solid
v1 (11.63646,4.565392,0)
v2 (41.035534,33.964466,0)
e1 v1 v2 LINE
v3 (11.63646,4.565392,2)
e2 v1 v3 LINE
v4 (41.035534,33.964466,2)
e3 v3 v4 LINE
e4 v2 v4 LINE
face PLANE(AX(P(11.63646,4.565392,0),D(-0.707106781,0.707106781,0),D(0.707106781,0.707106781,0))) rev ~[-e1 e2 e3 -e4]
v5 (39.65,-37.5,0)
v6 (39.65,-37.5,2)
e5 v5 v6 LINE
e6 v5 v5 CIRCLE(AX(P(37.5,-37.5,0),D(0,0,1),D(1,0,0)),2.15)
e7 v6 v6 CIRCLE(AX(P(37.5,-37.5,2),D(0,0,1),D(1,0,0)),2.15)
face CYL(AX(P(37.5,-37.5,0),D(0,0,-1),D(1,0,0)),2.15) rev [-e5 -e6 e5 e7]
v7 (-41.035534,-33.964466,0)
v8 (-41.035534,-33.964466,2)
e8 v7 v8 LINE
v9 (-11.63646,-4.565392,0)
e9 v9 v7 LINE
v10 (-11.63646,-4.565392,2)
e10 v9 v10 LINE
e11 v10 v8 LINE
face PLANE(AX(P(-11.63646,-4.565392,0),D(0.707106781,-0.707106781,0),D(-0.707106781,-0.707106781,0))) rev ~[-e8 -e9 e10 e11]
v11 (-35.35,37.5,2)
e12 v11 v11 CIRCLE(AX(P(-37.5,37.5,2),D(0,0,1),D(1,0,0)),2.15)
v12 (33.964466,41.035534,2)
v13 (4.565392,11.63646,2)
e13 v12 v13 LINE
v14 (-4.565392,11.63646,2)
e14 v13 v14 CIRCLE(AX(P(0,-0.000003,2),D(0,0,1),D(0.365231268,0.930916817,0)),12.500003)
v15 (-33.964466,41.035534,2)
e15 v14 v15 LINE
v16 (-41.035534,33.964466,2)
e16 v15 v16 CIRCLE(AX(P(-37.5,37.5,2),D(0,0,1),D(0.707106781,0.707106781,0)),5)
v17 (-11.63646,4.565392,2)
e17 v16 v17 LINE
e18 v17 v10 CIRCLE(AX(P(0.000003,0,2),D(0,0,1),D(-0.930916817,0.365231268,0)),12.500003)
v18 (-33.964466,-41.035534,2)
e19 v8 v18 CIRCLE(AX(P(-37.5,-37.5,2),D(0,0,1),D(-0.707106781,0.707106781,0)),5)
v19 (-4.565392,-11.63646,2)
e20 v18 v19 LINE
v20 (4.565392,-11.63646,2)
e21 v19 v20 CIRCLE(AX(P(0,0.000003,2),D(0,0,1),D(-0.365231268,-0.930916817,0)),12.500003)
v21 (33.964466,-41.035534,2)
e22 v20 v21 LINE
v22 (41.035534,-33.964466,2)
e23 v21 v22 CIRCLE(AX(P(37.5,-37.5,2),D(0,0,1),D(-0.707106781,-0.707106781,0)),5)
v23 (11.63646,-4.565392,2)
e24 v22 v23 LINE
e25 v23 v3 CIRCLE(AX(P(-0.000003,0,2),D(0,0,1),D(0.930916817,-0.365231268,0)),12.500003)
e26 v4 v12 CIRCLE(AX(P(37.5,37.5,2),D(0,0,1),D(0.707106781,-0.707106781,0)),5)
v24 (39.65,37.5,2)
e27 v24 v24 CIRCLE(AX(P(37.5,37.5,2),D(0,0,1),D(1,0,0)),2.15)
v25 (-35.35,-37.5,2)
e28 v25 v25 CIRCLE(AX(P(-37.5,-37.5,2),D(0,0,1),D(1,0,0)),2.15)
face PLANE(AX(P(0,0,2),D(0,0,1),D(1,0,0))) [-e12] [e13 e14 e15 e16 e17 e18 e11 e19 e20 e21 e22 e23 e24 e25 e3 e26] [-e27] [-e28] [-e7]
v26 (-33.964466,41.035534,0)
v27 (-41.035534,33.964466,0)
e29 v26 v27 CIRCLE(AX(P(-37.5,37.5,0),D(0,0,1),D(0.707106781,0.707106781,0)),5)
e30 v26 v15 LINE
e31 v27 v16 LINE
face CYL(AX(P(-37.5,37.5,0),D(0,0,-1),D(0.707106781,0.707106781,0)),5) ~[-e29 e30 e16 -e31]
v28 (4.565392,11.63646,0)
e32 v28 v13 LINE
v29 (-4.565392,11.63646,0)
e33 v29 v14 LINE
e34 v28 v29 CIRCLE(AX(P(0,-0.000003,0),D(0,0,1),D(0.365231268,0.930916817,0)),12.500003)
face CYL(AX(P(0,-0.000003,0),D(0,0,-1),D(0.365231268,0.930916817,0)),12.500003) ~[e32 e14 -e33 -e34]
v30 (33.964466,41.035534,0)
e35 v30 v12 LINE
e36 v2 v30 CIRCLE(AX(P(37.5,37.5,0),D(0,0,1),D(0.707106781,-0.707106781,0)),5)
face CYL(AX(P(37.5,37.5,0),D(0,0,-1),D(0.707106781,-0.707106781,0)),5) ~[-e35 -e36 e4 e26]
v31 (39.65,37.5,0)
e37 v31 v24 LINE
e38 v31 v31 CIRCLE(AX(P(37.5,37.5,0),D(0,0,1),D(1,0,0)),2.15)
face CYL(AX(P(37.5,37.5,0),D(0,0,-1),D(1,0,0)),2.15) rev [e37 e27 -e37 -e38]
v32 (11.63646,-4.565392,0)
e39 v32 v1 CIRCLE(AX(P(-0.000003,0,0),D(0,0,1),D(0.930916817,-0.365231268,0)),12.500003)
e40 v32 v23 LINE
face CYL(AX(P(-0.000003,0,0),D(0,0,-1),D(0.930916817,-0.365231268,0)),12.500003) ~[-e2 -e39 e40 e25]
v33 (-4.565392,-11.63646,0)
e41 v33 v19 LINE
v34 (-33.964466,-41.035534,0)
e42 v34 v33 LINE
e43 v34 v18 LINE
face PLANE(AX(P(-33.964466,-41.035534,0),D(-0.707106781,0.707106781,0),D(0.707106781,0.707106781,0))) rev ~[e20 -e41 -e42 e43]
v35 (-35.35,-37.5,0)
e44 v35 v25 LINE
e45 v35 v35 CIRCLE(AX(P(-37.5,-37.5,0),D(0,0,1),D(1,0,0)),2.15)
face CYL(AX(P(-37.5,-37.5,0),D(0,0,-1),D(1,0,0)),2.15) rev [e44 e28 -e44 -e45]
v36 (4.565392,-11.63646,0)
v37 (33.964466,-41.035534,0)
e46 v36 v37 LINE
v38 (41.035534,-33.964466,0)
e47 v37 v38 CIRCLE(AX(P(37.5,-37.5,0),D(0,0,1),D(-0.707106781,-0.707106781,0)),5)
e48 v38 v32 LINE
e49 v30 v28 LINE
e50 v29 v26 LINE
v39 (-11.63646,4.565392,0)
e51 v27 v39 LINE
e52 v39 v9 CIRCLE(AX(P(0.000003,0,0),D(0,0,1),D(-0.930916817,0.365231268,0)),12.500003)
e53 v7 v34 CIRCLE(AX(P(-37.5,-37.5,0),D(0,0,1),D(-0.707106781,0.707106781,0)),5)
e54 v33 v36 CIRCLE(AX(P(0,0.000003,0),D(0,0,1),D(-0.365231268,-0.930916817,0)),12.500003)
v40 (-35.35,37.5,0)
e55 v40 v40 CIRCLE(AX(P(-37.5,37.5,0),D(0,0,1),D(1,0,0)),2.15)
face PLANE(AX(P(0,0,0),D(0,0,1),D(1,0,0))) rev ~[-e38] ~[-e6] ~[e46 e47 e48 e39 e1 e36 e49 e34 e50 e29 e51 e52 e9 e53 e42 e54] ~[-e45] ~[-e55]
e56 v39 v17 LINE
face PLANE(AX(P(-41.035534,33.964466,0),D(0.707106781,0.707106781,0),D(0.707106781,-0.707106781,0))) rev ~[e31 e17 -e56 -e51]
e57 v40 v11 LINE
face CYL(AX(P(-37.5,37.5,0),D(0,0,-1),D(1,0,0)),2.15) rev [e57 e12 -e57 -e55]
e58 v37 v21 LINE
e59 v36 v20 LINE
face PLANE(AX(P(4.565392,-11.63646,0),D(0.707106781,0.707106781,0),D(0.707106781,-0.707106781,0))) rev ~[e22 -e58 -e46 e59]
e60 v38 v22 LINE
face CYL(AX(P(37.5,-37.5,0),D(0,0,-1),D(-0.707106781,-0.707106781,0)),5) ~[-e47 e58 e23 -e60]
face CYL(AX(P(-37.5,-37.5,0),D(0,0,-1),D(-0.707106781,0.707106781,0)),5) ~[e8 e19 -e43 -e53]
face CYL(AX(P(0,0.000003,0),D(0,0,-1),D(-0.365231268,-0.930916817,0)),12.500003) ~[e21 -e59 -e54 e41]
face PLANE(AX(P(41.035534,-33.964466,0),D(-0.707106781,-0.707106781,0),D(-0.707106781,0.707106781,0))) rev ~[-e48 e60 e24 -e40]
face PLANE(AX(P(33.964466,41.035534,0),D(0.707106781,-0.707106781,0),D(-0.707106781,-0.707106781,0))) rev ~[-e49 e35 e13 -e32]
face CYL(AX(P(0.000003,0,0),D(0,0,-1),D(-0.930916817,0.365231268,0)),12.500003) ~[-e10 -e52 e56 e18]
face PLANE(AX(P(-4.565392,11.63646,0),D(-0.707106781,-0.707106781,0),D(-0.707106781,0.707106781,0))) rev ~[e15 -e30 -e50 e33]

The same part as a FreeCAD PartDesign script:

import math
import FreeCAD as App
import Part
import Sketcher
from FreeCAD import Vector
Q = App.Units.Quantity

doc = App.newDocument("Part")
body = doc.addObject("PartDesign::Body", "Body")

# Sketch on XY plane
sketch1 = body.newObject("Sketcher::SketchObject", "Sketch")
sketch1.AttachmentSupport = (doc.getObject("XY_Plane"), [""])
sketch1.MapMode = "FlatFace"
sketch1.addGeometry([
    Part.LineSegment(Vector(-4.6, 11.6, 0), Vector(-34, 41, 0)),  # 0
    Part.ArcOfCircle(Part.Circle(Vector(-37.5, 37.5, 0), Vector(0, 0, 1), 5), math.radians(45), math.radians(225)),  # 1
    Part.LineSegment(Vector(-41, 34, 0), Vector(-11.6, 4.6, 0)),  # 2
    Part.ArcOfCircle(Part.Circle(Vector(0, 0, 0), Vector(0, 0, 1), 12.5), math.radians(159), math.radians(201)),  # 3
    Part.LineSegment(Vector(-11.6, -4.6, 0), Vector(-41, -34, 0)),  # 4
    Part.ArcOfCircle(Part.Circle(Vector(-37.5, -37.5, 0), Vector(0, 0, 1), 5), math.radians(135), math.radians(315)),  # 5
    Part.LineSegment(Vector(-34, -41, 0), Vector(-4.6, -11.6, 0)),  # 6
    Part.ArcOfCircle(Part.Circle(Vector(0, 0, 0), Vector(0, 0, 1), 12.5), math.radians(-111), math.radians(-69)),  # 7
    Part.LineSegment(Vector(4.6, -11.6, 0), Vector(34, -41, 0)),  # 8
    Part.ArcOfCircle(Part.Circle(Vector(37.5, -37.5, 0), Vector(0, 0, 1), 5), math.radians(-135), math.radians(45)),  # 9
    Part.LineSegment(Vector(41, -34, 0), Vector(11.6, -4.6, 0)),  # 10
    Part.ArcOfCircle(Part.Circle(Vector(0, 0, 0), Vector(0, 0, 1), 12.5), math.radians(-21), math.radians(21)),  # 11
    Part.LineSegment(Vector(11.6, 4.6, 0), Vector(41, 34, 0)),  # 12
    Part.ArcOfCircle(Part.Circle(Vector(37.5, 37.5, 0), Vector(0, 0, 1), 5), math.radians(-45), math.radians(135)),  # 13
    Part.LineSegment(Vector(34, 41, 0), Vector(4.6, 11.6, 0)),  # 14
    Part.ArcOfCircle(Part.Circle(Vector(0, 0, 0), Vector(0, 0, 1), 12.5), math.radians(69), math.radians(111)),  # 15
    Part.Circle(Vector(-37.5, -37.5, 0), Vector(0, 0, 1), 2.1),  # 16
    Part.Circle(Vector(37.5, -37.5, 0), Vector(0, 0, 1), 2.1),  # 17
    Part.Circle(Vector(-37.5, 37.5, 0), Vector(0, 0, 1), 2.1),  # 18
    Part.Circle(Vector(37.5, 37.5, 0), Vector(0, 0, 1), 2.1),  # 19
], False)
sketch1.addConstraint([
    Sketcher.Constraint("Tangent", 0, 2, 1, 1),
    Sketcher.Constraint("Tangent", 1, 2, 2, 1),
    Sketcher.Constraint("Coincident", 2, 2, 3, 1),
    Sketcher.Constraint("Coincident", 3, 2, 4, 1),
    Sketcher.Constraint("Tangent", 4, 2, 5, 1),
    Sketcher.Constraint("Tangent", 5, 2, 6, 1),
    Sketcher.Constraint("Coincident", 6, 2, 7, 1),
    Sketcher.Constraint("Coincident", 7, 2, 8, 1),
    Sketcher.Constraint("Tangent", 8, 2, 9, 1),
    Sketcher.Constraint("Tangent", 9, 2, 10, 1),
    Sketcher.Constraint("Coincident", 10, 2, 11, 1),
    Sketcher.Constraint("Coincident", 11, 2, 12, 1),
    Sketcher.Constraint("Tangent", 12, 2, 13, 1),
    Sketcher.Constraint("Tangent", 13, 2, 14, 1),
    Sketcher.Constraint("Coincident", 14, 2, 15, 1),
    Sketcher.Constraint("Coincident", 15, 2, 0, 1),
    Sketcher.Constraint("Coincident", 3, 3, -1, 1),
    Sketcher.Constraint("Coincident", 7, 3, -1, 1),
    Sketcher.Constraint("Coincident", 11, 3, -1, 1),
    Sketcher.Constraint("Coincident", 15, 3, -1, 1),
    Sketcher.Constraint("Coincident", 16, 3, 5, 3),
    Sketcher.Constraint("Coincident", 17, 3, 9, 3),
    Sketcher.Constraint("Coincident", 18, 3, 1, 3),
    Sketcher.Constraint("Coincident", 19, 3, 13, 3),
    Sketcher.Constraint("Equal", 1, 5),
    Sketcher.Constraint("Equal", 3, 7),
    Sketcher.Constraint("Equal", 5, 9),
    Sketcher.Constraint("Equal", 7, 11),
    Sketcher.Constraint("Equal", 9, 13),
    Sketcher.Constraint("Equal", 11, 15),
    Sketcher.Constraint("Equal", 16, 17),
    Sketcher.Constraint("Equal", 17, 18),
    Sketcher.Constraint("Equal", 18, 19),
    Sketcher.Constraint("Symmetric", 1, 3, 9, 3, -1, 1),
    Sketcher.Constraint("Symmetric", 5, 3, 13, 3, -1, 1),
    Sketcher.Constraint("Symmetric", 5, 3, 9, 3, -2),
    Sketcher.Constraint("Parallel", 0, 2),
    Sketcher.Constraint("Perpendicular", 2, 4),
    Sketcher.Constraint("Parallel", 4, 6),
    Sketcher.Constraint("Perpendicular", 6, 8),
    Sketcher.Constraint("Parallel", 8, 10),
    Sketcher.Constraint("Perpendicular", 10, 12),
    Sketcher.Constraint("Parallel", 12, 14),
    Sketcher.Constraint("Horizontal", 6, 2, 7, 2),
    Sketcher.Constraint("Equal", 0, 2),
    Sketcher.Constraint("Radius", 1, Q("5 mm")),
    Sketcher.Constraint("Diameter", 16, Q("4.3 mm")),
    Sketcher.Constraint("DistanceY", 5, 3, 1, 3, Q("75 mm")),
    Sketcher.Constraint("Radius", 3, Q("12.500003 mm")),
])
pad1 = body.newObject("PartDesign::Pad", "Pad")
pad1.Profile = sketch1
pad1.Length = 2

doc.recompute()
